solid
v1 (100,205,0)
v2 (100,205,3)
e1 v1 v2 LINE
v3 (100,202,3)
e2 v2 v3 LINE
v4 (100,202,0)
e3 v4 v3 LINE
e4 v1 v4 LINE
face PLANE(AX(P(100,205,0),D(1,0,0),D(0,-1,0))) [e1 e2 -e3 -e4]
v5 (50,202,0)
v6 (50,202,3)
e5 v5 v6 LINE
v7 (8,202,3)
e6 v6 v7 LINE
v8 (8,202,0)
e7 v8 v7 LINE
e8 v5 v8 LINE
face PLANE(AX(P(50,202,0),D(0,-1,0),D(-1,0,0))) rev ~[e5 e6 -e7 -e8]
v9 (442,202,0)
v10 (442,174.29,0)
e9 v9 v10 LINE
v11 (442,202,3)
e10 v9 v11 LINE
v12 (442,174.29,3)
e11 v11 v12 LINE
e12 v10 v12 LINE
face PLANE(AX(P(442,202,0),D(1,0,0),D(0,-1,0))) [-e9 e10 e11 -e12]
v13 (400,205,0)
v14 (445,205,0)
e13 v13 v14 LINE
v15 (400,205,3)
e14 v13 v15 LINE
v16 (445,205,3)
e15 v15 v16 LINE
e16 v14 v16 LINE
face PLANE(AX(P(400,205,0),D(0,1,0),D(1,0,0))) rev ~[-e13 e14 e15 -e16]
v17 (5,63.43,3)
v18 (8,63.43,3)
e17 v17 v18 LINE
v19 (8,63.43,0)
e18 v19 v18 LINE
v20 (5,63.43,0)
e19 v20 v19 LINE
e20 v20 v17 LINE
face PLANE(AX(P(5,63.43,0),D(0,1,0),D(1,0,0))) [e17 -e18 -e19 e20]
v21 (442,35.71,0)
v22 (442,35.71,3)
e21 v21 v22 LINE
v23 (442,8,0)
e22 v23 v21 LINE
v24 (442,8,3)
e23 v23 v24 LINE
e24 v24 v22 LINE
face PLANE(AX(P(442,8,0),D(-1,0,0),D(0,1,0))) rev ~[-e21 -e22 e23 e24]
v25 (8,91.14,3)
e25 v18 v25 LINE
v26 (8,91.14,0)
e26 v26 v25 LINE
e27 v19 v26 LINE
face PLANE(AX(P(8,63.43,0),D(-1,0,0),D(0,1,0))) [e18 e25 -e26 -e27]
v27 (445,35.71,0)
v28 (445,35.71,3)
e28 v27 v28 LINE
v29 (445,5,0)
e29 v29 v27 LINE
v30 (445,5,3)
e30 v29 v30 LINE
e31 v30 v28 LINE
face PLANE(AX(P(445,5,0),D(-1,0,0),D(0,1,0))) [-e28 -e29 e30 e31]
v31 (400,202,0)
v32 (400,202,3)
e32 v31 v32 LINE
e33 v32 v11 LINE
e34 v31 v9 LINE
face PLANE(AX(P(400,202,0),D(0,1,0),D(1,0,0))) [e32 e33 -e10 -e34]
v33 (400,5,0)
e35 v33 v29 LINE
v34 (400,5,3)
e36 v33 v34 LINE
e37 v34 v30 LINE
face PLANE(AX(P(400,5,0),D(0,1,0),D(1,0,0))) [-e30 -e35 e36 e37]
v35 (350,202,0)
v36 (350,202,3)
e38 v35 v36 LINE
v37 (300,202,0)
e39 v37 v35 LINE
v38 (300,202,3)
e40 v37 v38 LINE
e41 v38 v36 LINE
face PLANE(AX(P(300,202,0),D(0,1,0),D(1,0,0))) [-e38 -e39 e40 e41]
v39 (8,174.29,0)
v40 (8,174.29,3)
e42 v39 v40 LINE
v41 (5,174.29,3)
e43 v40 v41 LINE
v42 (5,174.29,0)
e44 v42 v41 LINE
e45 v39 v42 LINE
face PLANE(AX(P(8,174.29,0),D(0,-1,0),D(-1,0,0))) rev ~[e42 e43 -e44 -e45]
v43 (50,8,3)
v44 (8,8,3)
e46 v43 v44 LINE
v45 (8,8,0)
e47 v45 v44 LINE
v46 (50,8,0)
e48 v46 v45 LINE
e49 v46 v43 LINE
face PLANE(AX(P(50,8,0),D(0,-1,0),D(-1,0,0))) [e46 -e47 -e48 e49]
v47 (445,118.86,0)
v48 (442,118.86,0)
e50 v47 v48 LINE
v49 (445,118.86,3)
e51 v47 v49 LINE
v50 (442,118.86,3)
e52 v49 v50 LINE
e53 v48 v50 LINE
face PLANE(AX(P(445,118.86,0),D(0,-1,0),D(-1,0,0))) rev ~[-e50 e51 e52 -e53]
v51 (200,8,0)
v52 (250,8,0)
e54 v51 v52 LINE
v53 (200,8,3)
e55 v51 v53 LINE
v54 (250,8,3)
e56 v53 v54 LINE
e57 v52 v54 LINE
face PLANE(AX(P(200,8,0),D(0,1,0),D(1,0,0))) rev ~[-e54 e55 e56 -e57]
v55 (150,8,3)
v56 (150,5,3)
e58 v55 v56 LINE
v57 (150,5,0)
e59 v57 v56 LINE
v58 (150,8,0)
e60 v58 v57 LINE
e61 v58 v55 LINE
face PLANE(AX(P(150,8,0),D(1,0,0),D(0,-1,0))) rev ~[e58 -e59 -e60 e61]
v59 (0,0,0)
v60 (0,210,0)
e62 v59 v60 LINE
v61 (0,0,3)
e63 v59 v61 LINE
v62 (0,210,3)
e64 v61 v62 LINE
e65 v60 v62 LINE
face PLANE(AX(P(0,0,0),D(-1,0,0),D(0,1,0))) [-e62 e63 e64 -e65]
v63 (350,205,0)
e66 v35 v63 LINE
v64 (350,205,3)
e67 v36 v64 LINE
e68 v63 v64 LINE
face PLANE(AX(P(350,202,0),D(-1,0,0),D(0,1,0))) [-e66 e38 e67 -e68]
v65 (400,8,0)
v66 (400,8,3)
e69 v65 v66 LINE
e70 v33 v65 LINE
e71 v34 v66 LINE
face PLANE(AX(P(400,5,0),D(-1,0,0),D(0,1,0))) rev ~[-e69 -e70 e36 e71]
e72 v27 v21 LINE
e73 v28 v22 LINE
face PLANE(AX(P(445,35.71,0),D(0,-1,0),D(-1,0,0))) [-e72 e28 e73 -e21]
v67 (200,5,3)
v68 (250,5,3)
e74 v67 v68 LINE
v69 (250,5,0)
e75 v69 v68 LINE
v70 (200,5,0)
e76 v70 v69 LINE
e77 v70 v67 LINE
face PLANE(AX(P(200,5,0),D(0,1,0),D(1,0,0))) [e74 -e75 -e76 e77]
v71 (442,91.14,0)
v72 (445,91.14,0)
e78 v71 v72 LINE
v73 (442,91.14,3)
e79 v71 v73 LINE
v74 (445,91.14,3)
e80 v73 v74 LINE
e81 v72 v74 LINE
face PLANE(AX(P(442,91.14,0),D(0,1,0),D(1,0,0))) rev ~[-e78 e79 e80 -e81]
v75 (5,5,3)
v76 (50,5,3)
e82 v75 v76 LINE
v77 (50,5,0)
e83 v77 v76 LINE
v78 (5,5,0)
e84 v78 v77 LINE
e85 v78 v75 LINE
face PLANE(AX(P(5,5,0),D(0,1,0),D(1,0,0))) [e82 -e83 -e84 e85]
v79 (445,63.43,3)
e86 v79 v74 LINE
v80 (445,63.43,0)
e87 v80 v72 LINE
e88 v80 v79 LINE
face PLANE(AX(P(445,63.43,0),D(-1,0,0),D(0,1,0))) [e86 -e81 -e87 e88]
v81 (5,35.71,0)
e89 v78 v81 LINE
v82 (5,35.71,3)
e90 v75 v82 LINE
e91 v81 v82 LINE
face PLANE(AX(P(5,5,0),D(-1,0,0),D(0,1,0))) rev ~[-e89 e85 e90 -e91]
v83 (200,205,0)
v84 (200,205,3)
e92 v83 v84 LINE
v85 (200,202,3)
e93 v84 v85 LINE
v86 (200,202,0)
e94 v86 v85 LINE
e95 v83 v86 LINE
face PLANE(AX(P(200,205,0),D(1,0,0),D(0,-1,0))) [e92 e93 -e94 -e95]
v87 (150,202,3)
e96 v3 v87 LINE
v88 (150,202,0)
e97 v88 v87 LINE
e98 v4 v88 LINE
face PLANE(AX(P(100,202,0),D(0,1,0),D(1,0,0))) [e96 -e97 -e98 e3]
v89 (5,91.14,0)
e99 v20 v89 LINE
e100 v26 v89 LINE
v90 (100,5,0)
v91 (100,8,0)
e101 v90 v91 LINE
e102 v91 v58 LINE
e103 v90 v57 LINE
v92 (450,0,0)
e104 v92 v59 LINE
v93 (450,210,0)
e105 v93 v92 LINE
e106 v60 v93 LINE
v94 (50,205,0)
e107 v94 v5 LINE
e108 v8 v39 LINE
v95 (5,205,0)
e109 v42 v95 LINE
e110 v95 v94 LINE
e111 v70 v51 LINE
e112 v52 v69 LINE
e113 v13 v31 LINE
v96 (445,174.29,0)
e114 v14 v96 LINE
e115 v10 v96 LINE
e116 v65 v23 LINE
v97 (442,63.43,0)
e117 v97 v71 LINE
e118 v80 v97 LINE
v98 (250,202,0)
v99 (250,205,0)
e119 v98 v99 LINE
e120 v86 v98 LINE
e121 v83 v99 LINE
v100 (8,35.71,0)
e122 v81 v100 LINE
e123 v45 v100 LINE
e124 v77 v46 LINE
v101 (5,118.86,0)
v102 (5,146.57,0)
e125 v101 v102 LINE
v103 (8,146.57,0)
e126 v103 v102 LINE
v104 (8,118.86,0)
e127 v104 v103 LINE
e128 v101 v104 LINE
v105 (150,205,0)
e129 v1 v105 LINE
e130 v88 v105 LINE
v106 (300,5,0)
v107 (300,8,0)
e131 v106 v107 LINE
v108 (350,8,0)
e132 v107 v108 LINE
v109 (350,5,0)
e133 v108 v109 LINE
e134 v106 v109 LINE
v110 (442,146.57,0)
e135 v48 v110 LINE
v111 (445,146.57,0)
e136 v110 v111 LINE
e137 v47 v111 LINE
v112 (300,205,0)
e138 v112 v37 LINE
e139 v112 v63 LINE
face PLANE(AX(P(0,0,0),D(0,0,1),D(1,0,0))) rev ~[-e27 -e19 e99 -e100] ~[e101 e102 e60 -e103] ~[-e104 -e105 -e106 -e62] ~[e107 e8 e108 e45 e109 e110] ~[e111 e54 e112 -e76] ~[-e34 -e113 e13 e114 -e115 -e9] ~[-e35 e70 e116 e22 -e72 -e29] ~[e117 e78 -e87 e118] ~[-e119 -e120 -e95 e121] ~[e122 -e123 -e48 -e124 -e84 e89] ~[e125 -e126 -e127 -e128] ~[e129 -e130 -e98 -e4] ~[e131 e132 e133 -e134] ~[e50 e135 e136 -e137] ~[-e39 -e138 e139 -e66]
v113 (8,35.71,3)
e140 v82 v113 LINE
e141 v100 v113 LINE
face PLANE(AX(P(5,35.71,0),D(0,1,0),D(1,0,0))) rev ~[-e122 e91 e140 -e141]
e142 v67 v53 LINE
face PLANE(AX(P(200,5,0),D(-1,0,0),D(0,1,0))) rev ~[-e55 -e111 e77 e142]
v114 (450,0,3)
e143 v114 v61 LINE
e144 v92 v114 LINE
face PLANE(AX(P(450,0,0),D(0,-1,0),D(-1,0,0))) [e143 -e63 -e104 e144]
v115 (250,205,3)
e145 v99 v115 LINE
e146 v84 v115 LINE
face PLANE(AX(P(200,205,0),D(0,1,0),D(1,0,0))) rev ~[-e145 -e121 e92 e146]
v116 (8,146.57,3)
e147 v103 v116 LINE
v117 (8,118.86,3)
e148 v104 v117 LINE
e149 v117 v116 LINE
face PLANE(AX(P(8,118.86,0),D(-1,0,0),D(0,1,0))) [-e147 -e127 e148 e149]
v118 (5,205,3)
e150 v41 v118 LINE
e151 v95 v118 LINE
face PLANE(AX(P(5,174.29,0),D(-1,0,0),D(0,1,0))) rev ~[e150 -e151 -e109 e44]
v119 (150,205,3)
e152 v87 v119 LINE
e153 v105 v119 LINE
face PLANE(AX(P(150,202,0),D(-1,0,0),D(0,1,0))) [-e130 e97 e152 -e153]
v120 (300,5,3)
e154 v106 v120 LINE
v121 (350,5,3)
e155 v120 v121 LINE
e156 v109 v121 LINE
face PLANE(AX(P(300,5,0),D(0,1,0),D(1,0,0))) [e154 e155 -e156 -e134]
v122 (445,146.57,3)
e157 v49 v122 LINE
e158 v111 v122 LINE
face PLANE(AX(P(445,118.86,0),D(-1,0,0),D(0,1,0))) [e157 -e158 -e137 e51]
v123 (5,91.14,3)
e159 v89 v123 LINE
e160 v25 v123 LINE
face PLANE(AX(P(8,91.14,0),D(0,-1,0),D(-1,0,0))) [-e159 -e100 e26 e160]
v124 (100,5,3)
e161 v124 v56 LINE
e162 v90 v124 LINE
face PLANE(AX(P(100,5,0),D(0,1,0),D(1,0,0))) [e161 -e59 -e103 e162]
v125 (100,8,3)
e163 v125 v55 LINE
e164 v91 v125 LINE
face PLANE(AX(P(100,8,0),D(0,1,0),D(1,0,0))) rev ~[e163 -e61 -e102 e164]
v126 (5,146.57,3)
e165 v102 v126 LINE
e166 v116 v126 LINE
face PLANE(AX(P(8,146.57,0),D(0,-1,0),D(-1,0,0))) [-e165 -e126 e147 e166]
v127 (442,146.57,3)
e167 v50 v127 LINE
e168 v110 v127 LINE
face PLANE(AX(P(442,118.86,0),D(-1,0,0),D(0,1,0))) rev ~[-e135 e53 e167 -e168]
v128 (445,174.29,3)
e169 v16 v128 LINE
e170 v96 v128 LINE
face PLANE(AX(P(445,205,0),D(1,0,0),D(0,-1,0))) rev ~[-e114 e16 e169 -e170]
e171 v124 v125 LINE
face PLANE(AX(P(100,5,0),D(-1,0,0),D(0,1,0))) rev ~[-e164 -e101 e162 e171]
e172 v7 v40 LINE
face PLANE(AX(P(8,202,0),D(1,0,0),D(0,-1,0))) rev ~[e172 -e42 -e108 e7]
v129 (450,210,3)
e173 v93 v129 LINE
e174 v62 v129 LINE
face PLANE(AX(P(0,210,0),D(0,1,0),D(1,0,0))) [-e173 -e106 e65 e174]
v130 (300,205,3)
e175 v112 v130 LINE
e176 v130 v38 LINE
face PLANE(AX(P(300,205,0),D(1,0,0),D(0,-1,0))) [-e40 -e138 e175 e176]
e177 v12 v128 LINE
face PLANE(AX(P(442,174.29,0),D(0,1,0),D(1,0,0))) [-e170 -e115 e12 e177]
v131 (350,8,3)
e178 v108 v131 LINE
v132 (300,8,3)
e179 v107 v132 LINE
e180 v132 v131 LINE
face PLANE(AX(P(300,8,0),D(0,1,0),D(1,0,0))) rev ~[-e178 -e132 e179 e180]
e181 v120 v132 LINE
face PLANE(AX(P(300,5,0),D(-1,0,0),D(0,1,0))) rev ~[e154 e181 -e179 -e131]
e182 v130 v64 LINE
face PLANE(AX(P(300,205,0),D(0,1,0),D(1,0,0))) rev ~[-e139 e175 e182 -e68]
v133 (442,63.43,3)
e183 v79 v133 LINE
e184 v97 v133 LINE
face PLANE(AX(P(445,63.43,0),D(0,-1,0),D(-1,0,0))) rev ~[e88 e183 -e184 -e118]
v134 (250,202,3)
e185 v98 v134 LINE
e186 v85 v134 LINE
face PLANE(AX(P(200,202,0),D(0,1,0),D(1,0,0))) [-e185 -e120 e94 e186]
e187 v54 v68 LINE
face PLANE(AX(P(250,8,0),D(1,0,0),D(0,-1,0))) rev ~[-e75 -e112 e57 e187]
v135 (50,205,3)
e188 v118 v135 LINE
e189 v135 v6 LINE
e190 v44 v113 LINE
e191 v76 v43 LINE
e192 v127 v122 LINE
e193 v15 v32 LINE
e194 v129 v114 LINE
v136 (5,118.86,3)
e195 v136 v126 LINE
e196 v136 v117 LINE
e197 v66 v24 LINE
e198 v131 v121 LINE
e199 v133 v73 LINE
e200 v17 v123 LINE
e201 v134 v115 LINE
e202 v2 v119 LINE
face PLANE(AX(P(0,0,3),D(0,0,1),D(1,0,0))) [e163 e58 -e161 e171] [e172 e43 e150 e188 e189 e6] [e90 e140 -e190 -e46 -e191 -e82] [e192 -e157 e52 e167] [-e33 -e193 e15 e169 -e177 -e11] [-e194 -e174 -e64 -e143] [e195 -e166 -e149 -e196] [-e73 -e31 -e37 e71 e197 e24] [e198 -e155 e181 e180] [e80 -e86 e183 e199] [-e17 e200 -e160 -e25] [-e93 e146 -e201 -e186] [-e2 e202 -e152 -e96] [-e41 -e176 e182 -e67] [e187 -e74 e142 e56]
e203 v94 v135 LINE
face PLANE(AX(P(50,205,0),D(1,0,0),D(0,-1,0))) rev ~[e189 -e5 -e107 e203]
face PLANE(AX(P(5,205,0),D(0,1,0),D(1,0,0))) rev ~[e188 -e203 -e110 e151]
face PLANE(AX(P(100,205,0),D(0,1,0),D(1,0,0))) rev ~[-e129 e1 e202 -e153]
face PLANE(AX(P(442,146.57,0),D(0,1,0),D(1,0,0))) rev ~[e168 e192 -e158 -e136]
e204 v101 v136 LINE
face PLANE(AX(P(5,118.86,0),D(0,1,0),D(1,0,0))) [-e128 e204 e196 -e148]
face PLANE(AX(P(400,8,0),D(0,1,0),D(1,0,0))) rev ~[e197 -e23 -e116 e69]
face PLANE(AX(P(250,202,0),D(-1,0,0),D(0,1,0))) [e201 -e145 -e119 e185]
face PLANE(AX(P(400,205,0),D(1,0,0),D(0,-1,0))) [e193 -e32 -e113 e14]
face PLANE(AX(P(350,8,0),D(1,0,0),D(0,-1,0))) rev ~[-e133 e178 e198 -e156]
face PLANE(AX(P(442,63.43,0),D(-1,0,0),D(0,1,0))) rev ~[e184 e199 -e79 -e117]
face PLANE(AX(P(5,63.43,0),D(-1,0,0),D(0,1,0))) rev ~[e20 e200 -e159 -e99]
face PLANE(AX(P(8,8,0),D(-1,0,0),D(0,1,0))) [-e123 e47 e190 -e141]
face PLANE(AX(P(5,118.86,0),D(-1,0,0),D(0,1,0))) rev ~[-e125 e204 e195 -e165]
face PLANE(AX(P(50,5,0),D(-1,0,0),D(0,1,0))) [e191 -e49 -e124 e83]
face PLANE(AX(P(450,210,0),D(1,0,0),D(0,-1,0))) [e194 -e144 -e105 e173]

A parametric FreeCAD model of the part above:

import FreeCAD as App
import Part
import Sketcher

V = App.Vector


def add_polygon(sketch, points):
    """Adds a closed chain of lines whose ends are joined by coincident constraints."""
    first, n = sketch.GeometryCount, len(points)
    for a, b in zip(points, points[1:] + points[:1]):
        sketch.addGeometry(Part.LineSegment(App.Vector(*a, 0), App.Vector(*b, 0)), False)
    for i in range(n):
        sketch.addConstraint(Sketcher.Constraint("Coincident", first + i, 2, first + (i + 1) % n, 1))

doc = App.newDocument("Part")
body = doc.addObject("PartDesign::Body", "Body")

sketch1 = body.newObject("Sketcher::SketchObject", "Sketch")
sketch1.AttachmentSupport = (doc.getObject("XY_Plane"), [""])
sketch1.MapMode = "FlatFace"
add_polygon(sketch1, [(0, 210), (0, 0), (450, 0), (450, 210)])
add_polygon(sketch1, [(50, 5), (5, 5), (5, 35.71), (8, 35.71), (8, 8), (50, 8)])
add_polygon(sketch1, [(150, 5), (100, 5), (100, 8), (150, 8)])
add_polygon(sketch1, [(8, 63.43), (5, 63.43), (5, 91.14), (8, 91.14)])
add_polygon(sketch1, [(250, 5), (200, 5), (200, 8), (250, 8)])
add_polygon(sketch1, [(350, 5), (300, 5), (300, 8), (350, 8)])
add_polygon(sketch1, [(445, 5), (400, 5), (400, 8), (442, 8), (442, 35.71), (445, 35.71)])
add_polygon(sketch1, [(445, 91.14), (445, 63.43), (442, 63.43), (442, 91.14)])
add_polygon(sketch1, [(8, 118.86), (5, 118.86), (5, 146.57), (8, 146.57)])
add_polygon(sketch1, [(8, 174.29), (5, 174.29), (5, 205), (50, 205), (50, 202), (8, 202)])
add_polygon(sketch1, [(100, 202), (100, 205), (150, 205), (150, 202)])
add_polygon(sketch1, [(445, 146.57), (445, 118.86), (442, 118.86), (442, 146.57)])
add_polygon(sketch1, [(200, 202), (200, 205), (250, 205), (250, 202)])
add_polygon(sketch1, [(300, 202), (300, 205), (350, 205), (350, 202)])
add_polygon(sketch1, [(400, 202), (400, 205), (445, 205), (445, 174.29), (442, 174.29), (442, 202)])
sketch1.addConstraint(Sketcher.Constraint("Vertical", 0))
sketch1.addConstraint(Sketcher.Constraint("Horizontal", 1))
sketch1.addConstraint(Sketcher.Constraint("Vertical", 2))
sketch1.addConstraint(Sketcher.Constraint("Horizontal", 3))
sketch1.addConstraint(Sketcher.Constraint("Horizontal", 4))
sketch1.addConstraint(Sketcher.Constraint("Vertical", 5))
sketch1.addConstraint(Sketcher.Constraint("Horizontal", 6))
sketch1.addConstraint(Sketcher.Constraint("Vertical", 7))
sketch1.addConstraint(Sketcher.Constraint("Horizontal", 8))
sketch1.addConstraint(Sketcher.Constraint("Vertical", 9))
sketch1.addConstraint(Sketcher.Constraint("Horizontal", 10))
sketch1.addConstraint(Sketcher.Constraint("Vertical", 11))
sketch1.addConstraint(Sketcher.Constraint("Horizontal", 12))
sketch1.addConstraint(Sketcher.Constraint("Vertical", 13))
sketch1.addConstraint(Sketcher.Constraint("Horizontal", 14))
sketch1.addConstraint(Sketcher.Constraint("Vertical", 15))
sketch1.addConstraint(Sketcher.Constraint("Horizontal", 16))
sketch1.addConstraint(Sketcher.Constraint("Vertical", 17))
sketch1.addConstraint(Sketcher.Constraint("Horizontal", 18))
sketch1.addConstraint(Sketcher.Constraint("Vertical", 19))
sketch1.addConstraint(Sketcher.Constraint("Horizontal", 20))
sketch1.addConstraint(Sketcher.Constraint("Vertical", 21))
sketch1.addConstraint(Sketcher.Constraint("Horizontal", 22))
sketch1.addConstraint(Sketcher.Constraint("Vertical", 23))
sketch1.addConstraint(Sketcher.Constraint("Horizontal", 24))
sketch1.addConstraint(Sketcher.Constraint("Vertical", 25))
sketch1.addConstraint(Sketcher.Constraint("Horizontal", 26))
sketch1.addConstraint(Sketcher.Constraint("Vertical", 27))
sketch1.addConstraint(Sketcher.Constraint("Horizontal", 28))
sketch1.addConstraint(Sketcher.Constraint("Vertical", 29))
sketch1.addConstraint(Sketcher.Constraint("Horizontal", 30))
sketch1.addConstraint(Sketcher.Constraint("Vertical", 31))
sketch1.addConstraint(Sketcher.Constraint("Vertical", 32))
sketch1.addConstraint(Sketcher.Constraint("Horizontal", 33))
sketch1.addConstraint(Sketcher.Constraint("Vertical", 34))
sketch1.addConstraint(Sketcher.Constraint("Horizontal", 35))
sketch1.addConstraint(Sketcher.Constraint("Horizontal", 36))
sketch1.addConstraint(Sketcher.Constraint("Vertical", 37))
sketch1.addConstraint(Sketcher.Constraint("Horizontal", 38))
sketch1.addConstraint(Sketcher.Constraint("Vertical", 39))
sketch1.addConstraint(Sketcher.Constraint("Horizontal", 40))
sketch1.addConstraint(Sketcher.Constraint("Vertical", 41))
sketch1.addConstraint(Sketcher.Constraint("Horizontal", 42))
sketch1.addConstraint(Sketcher.Constraint("Vertical", 43))
sketch1.addConstraint(Sketcher.Constraint("Horizontal", 44))
sketch1.addConstraint(Sketcher.Constraint("Vertical", 45))
sketch1.addConstraint(Sketcher.Constraint("Vertical", 46))
sketch1.addConstraint(Sketcher.Constraint("Horizontal", 47))
sketch1.addConstraint(Sketcher.Constraint("Vertical", 48))
sketch1.addConstraint(Sketcher.Constraint("Horizontal", 49))
sketch1.addConstraint(Sketcher.Constraint("Vertical", 50))
sketch1.addConstraint(Sketcher.Constraint("Horizontal", 51))
sketch1.addConstraint(Sketcher.Constraint("Vertical", 52))
sketch1.addConstraint(Sketcher.Constraint("Horizontal", 53))
sketch1.addConstraint(Sketcher.Constraint("Vertical", 54))
sketch1.addConstraint(Sketcher.Constraint("Horizontal", 55))
sketch1.addConstraint(Sketcher.Constraint("Vertical", 56))
sketch1.addConstraint(Sketcher.Constraint("Horizontal", 57))
sketch1.addConstraint(Sketcher.Constraint("Vertical", 58))
sketch1.addConstraint(Sketcher.Constraint("Horizontal", 59))
sketch1.addConstraint(Sketcher.Constraint("Vertical", 60))
sketch1.addConstraint(Sketcher.Constraint("Horizontal", 61))
sketch1.addConstraint(Sketcher.Constraint("Vertical", 62))
sketch1.addConstraint(Sketcher.Constraint("Horizontal", 63))
sketch1.addConstraint(Sketcher.Constraint("Vertical", 64))
sketch1.addConstraint(Sketcher.Constraint("Horizontal", 65))
sketch1.addConstraint(Sketcher.Constraint("Vertical", 66))
sketch1.addConstraint(Sketcher.Constraint("Horizontal", 67))
sketch1.addConstraint(Sketcher.Constraint("Coincident", 0, 2, -1, 1))
sketch1.addConstraint(Sketcher.Constraint("Horizontal", 9, 2, 10, 2))
sketch1.addConstraint(Sketcher.Constraint("Horizontal", 8, 2, 11, 2))
sketch1.addConstraint(Sketcher.Constraint("Horizontal", 13, 2, 18, 2))
sketch1.addConstraint(Sketcher.Constraint("Horizontal", 12, 2, 19, 2))
sketch1.addConstraint(Sketcher.Constraint("Horizontal", 21, 2, 22, 2))
sketch1.addConstraint(Sketcher.Constraint("Horizontal", 20, 2, 23, 2))
sketch1.addConstraint(Sketcher.Constraint("Horizontal", 25, 2, 26, 2))
sketch1.addConstraint(Sketcher.Constraint("Horizontal", 24, 2, 27, 2))
sketch1.addConstraint(Sketcher.Constraint("Horizontal", 6, 2, 29, 2))
sketch1.addConstraint(Sketcher.Constraint("Horizontal", 17, 2, 32, 2))
sketch1.addConstraint(Sketcher.Constraint("Horizontal", 16, 2, 34, 2))
sketch1.addConstraint(Sketcher.Constraint("Horizontal", 42, 2, 46, 2))
sketch1.addConstraint(Sketcher.Constraint("Horizontal", 44, 2, 48, 2))
sketch1.addConstraint(Sketcher.Constraint("Horizontal", 39, 2, 50, 2))
sketch1.addConstraint(Sketcher.Constraint("Horizontal", 38, 2, 52, 2))
sketch1.addConstraint(Sketcher.Constraint("Horizontal", 47, 2, 54, 2))
sketch1.addConstraint(Sketcher.Constraint("Horizontal", 49, 2, 56, 2))
sketch1.addConstraint(Sketcher.Constraint("Horizontal", 55, 2, 58, 2))
sketch1.addConstraint(Sketcher.Constraint("Horizontal", 57, 2, 60, 2))
sketch1.addConstraint(Sketcher.Constraint("Horizontal", 59, 2, 62, 2))
sketch1.addConstraint(Sketcher.Constraint("Horizontal", 45, 2, 64, 2))
sketch1.addConstraint(Sketcher.Constraint("Horizontal", 61, 2, 66, 2))
sketch1.addConstraint(Sketcher.Constraint("Vertical", 5, 2, 14, 2))
sketch1.addConstraint(Sketcher.Constraint("Vertical", 7, 2, 16, 2))
sketch1.addConstraint(Sketcher.Constraint("Vertical", 31, 2, 32, 2))
sketch1.addConstraint(Sketcher.Constraint("Vertical", 29, 2, 33, 2))
sketch1.addConstraint(Sketcher.Constraint("Vertical", 15, 2, 36, 2))
sketch1.addConstraint(Sketcher.Constraint("Vertical", 17, 2, 38, 2))
sketch1.addConstraint(Sketcher.Constraint("Vertical", 37, 2, 40, 2))
sketch1.addConstraint(Sketcher.Constraint("Vertical", 9, 2, 42, 2))
sketch1.addConstraint(Sketcher.Constraint("Vertical", 39, 2, 44, 2))
sketch1.addConstraint(Sketcher.Constraint("Vertical", 11, 2, 46, 2))
sketch1.addConstraint(Sketcher.Constraint("Vertical", 13, 2, 47, 2))
sketch1.addConstraint(Sketcher.Constraint("Vertical", 35, 2, 50, 2))
sketch1.addConstraint(Sketcher.Constraint("Vertical", 34, 2, 51, 2))
sketch1.addConstraint(Sketcher.Constraint("Vertical", 19, 2, 54, 2))
sketch1.addConstraint(Sketcher.Constraint("Vertical", 21, 2, 55, 2))
sketch1.addConstraint(Sketcher.Constraint("Vertical", 23, 2, 58, 2))
sketch1.addConstraint(Sketcher.Constraint("Vertical", 25, 2, 59, 2))
sketch1.addConstraint(Sketcher.Constraint("Vertical", 27, 2, 62, 2))
sketch1.addConstraint(Sketcher.Constraint("Vertical", 53, 2, 63, 2))
sketch1.addConstraint(Sketcher.Constraint("Vertical", 52, 2, 65, 2))
sketch1.addConstraint(Sketcher.Constraint("Equal", 12, 18))
sketch1.addConstraint(Sketcher.Constraint("Equal", 20, 22))
sketch1.addConstraint(Sketcher.Constraint("Equal", 4, 26))
sketch1.addConstraint(Sketcher.Constraint("Equal", 8, 28))
sketch1.addConstraint(Sketcher.Constraint("Equal", 65, 9))
sketch1.addConstraint(Sketcher.Constraint("Equal", 7, 15))
sketch1.addConstraint(Sketcher.Constraint("Equal", 34, 37))
sketch1.addConstraint(Sketcher.Constraint("Equal", 31, 41))
sketch1.addConstraint(Sketcher.Constraint("Equal", 27, 43))
sketch1.addConstraint(Sketcher.Constraint("DistanceX", 1, 1, 1, 2, 450.0))
sketch1.addConstraint(Sketcher.Constraint("DistanceX", 4, 2, 4, 1, 45.0))
sketch1.addConstraint(Sketcher.Constraint("DistanceX", 6, 1, 6, 2, 3.0))
sketch1.addConstraint(Sketcher.Constraint("DistanceX", 10, 2, 10, 1, 50.0))
sketch1.addConstraint(Sketcher.Constraint("DistanceY", 0, 2, 0, 1, 210.0))
sketch1.addConstraint(Sketcher.Constraint("DistanceX", -1, 1, 4, 2, 5.0))
sketch1.addConstraint(Sketcher.Constraint("DistanceY", -1, 1, 4, 2, 5.0))
sketch1.addConstraint(Sketcher.Constraint("DistanceY", 5, 1, 5, 2, 30.71))
sketch1.addConstraint(Sketcher.Constraint("DistanceX", -1, 1, 10, 2, 100.0))
sketch1.addConstraint(Sketcher.Constraint("DistanceX", -1, 1, 18, 2, 200.0))
sketch1.addConstraint(Sketcher.Constraint("DistanceX", -1, 1, 22, 2, 300.0))
sketch1.addConstraint(Sketcher.Constraint("DistanceX", -1, 1, 26, 2, 400.0))
sketch1.addConstraint(Sketcher.Constraint("DistanceY", -1, 1, 41, 2, 205.0))
sketch1.addConstraint(Sketcher.Constraint("DistanceY", -1, 1, 14, 2, 63.43))
sketch1.addConstraint(Sketcher.Constraint("DistanceY", -1, 1, 36, 2, 118.86))
pad1 = body.newObject("PartDesign::Pad", "Pad")
pad1.Profile = sketch1
pad1.Length = 3

doc.recompute()
